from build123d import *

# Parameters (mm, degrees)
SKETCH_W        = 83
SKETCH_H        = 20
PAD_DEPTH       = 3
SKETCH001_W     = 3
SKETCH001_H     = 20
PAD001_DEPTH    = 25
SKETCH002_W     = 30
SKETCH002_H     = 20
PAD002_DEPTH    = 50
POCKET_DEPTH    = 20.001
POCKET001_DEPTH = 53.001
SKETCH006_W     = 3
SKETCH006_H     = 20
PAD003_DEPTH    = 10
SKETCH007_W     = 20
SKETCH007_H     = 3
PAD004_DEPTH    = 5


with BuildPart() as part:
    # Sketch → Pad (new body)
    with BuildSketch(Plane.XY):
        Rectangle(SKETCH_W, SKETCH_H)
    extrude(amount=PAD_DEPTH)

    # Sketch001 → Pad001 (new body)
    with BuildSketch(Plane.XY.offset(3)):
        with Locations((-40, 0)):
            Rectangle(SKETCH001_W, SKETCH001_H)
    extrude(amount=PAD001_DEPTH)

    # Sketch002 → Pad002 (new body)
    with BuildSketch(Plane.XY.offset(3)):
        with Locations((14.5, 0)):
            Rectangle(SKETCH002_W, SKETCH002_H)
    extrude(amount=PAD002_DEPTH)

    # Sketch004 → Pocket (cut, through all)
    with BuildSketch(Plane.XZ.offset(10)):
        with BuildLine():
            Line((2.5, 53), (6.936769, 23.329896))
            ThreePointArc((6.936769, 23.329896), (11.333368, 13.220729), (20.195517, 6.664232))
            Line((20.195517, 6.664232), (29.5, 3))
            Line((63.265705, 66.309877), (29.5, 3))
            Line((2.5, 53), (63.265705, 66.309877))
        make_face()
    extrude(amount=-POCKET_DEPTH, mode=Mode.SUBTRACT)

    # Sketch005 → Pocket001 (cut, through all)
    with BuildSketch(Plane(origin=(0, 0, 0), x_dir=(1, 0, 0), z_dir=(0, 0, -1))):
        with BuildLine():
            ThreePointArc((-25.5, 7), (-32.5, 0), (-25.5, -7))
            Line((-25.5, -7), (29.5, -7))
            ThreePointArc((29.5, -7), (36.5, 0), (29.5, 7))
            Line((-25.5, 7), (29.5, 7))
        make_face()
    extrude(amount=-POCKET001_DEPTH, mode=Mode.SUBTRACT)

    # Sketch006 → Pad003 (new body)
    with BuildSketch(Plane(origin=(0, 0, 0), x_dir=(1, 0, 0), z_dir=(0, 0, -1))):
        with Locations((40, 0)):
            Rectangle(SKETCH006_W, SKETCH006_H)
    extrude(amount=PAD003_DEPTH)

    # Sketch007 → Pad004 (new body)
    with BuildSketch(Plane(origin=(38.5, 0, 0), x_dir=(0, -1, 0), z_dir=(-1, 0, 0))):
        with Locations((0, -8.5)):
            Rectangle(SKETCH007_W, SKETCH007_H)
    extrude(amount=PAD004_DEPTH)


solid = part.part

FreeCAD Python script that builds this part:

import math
import FreeCAD as App
import Part
import Sketcher
Q = App.Units.Quantity

doc = App.newDocument("Part")
body = doc.addObject("PartDesign::Body", "Body")

# Sketch on XY plane
sketch1 = body.newObject("Sketcher::SketchObject", "Sketch")
sketch1.AttachmentSupport = (doc.getObject("XY_Plane"), [""])
sketch1.MapMode = "FlatFace"
sketch1.addGeometry(Part.LineSegment(App.Vector(-41.5, 10, 0), App.Vector(-41.5, -10, 0)), False)
sketch1.addGeometry(Part.LineSegment(App.Vector(-41.5, -10, 0), App.Vector(41.5, -10, 0)), False)
sketch1.addGeometry(Part.LineSegment(App.Vector(41.5, -10, 0), App.Vector(41.5, 10, 0)), False)
sketch1.addGeometry(Part.LineSegment(App.Vector(41.5, 10, 0), App.Vector(-41.5, 10, 0)), False)
sketch1.addConstraint(Sketcher.Constraint("Coincident", 0, 2, 1, 1))
sketch1.addConstraint(Sketcher.Constraint("Coincident", 1, 2, 2, 1))
sketch1.addConstraint(Sketcher.Constraint("Coincident", 2, 2, 3, 1))
sketch1.addConstraint(Sketcher.Constraint("Coincident", 3, 2, 0, 1))
sketch1.addConstraint(Sketcher.Constraint("Vertical", 0))
sketch1.addConstraint(Sketcher.Constraint("Horizontal", 1))
sketch1.addConstraint(Sketcher.Constraint("Vertical", 2))
sketch1.addConstraint(Sketcher.Constraint("Horizontal", 3))
sketch1.addConstraint(Sketcher.Constraint("Symmetric", 0, 2, 2, 2, -1, 1))
sketch1.addConstraint(Sketcher.Constraint("DistanceX", 1, 1, 1, 2, Q("83 mm")))
sketch1.addConstraint(Sketcher.Constraint("DistanceY", 0, 2, 0, 1, Q("20 mm")))
pad1 = body.newObject("PartDesign::Pad", "Pad")
pad1.Profile = sketch1
pad1.Length = 3

# Sketch on XY plane
sketch2 = body.newObject("Sketcher::SketchObject", "Sketch001")
sketch2.AttachmentSupport = (doc.getObject("XY_Plane"), [""])
sketch2.MapMode = "FlatFace"
sketch2.AttachmentOffset = App.Placement(App.Vector(0, 0, 3), App.Rotation())
sketch2.addGeometry(Part.LineSegment(App.Vector(-41.5, 10, 0), App.Vector(-41.5, -10, 0)), False)
sketch2.addGeometry(Part.LineSegment(App.Vector(-41.5, -10, 0), App.Vector(-38.5, -10, 0)), False)
sketch2.addGeometry(Part.LineSegment(App.Vector(-38.5, -10, 0), App.Vector(-38.5, 10, 0)), False)
sketch2.addGeometry(Part.LineSegment(App.Vector(-38.5, 10, 0), App.Vector(-41.5, 10, 0)), False)
sketch2.addConstraint(Sketcher.Constraint("Coincident", 0, 2, 1, 1))
sketch2.addConstraint(Sketcher.Constraint("Coincident", 1, 2, 2, 1))
sketch2.addConstraint(Sketcher.Constraint("Coincident", 2, 2, 3, 1))
sketch2.addConstraint(Sketcher.Constraint("Coincident", 3, 2, 0, 1))
sketch2.addConstraint(Sketcher.Constraint("Vertical", 0))
sketch2.addConstraint(Sketcher.Constraint("Horizontal", 1))
sketch2.addConstraint(Sketcher.Constraint("Vertical", 2))
sketch2.addConstraint(Sketcher.Constraint("Horizontal", 3))
sketch2.addConstraint(Sketcher.Constraint("DistanceX", 1, 1, 1, 2, Q("3 mm")))
sketch2.addConstraint(Sketcher.Constraint("DistanceY", 0, 2, 0, 1, Q("20 mm")))
sketch2.addConstraint(Sketcher.Constraint("DistanceY", 0, 2, -1, 1, Q("10 mm")))
sketch2.addConstraint(Sketcher.Constraint("DistanceX", 0, 2, -1, 1, Q("41.5 mm")))
pad2 = body.newObject("PartDesign::Pad", "Pad001")
pad2.Profile = sketch2
pad2.Length = 25

# Sketch on XY plane
sketch3 = body.newObject("Sketcher::SketchObject", "Sketch002")
sketch3.AttachmentSupport = (doc.getObject("XY_Plane"), [""])
sketch3.MapMode = "FlatFace"
sketch3.AttachmentOffset = App.Placement(App.Vector(0, 0, 3), App.Rotation())
sketch3.addGeometry(Part.LineSegment(App.Vector(-0.5, 10, 0), App.Vector(-0.5, -10, 0)), False)
sketch3.addGeometry(Part.LineSegment(App.Vector(-0.5, -10, 0), App.Vector(29.5, -10, 0)), False)
sketch3.addGeometry(Part.LineSegment(App.Vector(29.5, -10, 0), App.Vector(29.5, 10, 0)), False)
sketch3.addGeometry(Part.LineSegment(App.Vector(29.5, 10, 0), App.Vector(-0.5, 10, 0)), False)
sketch3.addConstraint(Sketcher.Constraint("Coincident", 0, 2, 1, 1))
sketch3.addConstraint(Sketcher.Constraint("Coincident", 1, 2, 2, 1))
sketch3.addConstraint(Sketcher.Constraint("Coincident", 2, 2, 3, 1))
sketch3.addConstraint(Sketcher.Constraint("Coincident", 3, 2, 0, 1))
sketch3.addConstraint(Sketcher.Constraint("Vertical", 0))
sketch3.addConstraint(Sketcher.Constraint("Horizontal", 1))
sketch3.addConstraint(Sketcher.Constraint("Vertical", 2))
sketch3.addConstraint(Sketcher.Constraint("Horizontal", 3))
sketch3.addConstraint(Sketcher.Constraint("DistanceX", 1, 1, 1, 2, Q("30 mm")))
sketch3.addConstraint(Sketcher.Constraint("DistanceY", 0, 2, 0, 1, Q("20 mm")))
sketch3.addConstraint(Sketcher.Constraint("DistanceY", 0, 2, -1, 1, Q("10 mm")))
sketch3.addConstraint(Sketcher.Constraint("DistanceX", 0, 2, -1, 1, Q("0.5 mm")))
pad3 = body.newObject("PartDesign::Pad", "Pad002")
pad3.Profile = sketch3
pad3.Length = 50

# Sketch on XZ plane
sketch4 = body.newObject("Sketcher::SketchObject", "Sketch003")
sketch4.AttachmentSupport = (doc.getObject("XZ_Plane"), [""])
sketch4.MapMode = "FlatFace"
sketch4.AttachmentOffset = App.Placement(App.Vector(0, 0, 10), App.Rotation())
sketch4.addGeometry(Part.LineSegment(App.Vector(2.5, 53, 0), App.Vector(6.936769, 23.329896, 0)), False)
sketch4.addGeometry(Part.ArcOfCircle(Part.Circle(App.Vector(27.999036, 26.47948, 0), App.Vector(0, 0, 1), 21.296454), math.radians(-171.495192), math.radians(-111.495206)), False)
sketch4.addGeometry(Part.LineSegment(App.Vector(20.195517, 6.664232, 0), App.Vector(29.5, 3, 0)), False)
sketch4.addGeometry(Part.LineSegment(App.Vector(29.5, 3, 0), App.Vector(63.265705, 66.309877, 0)), False)
sketch4.addGeometry(Part.LineSegment(App.Vector(63.265705, 66.309877, 0), App.Vector(2.5, 53, 0)), False)
sketch4.addConstraint(Sketcher.Constraint("Tangent", 0, 2, 1, 1))
sketch4.addConstraint(Sketcher.Constraint("Tangent", 1, 2, 2, 1))
sketch4.addConstraint(Sketcher.Constraint("Coincident", 2, 2, 3, 1))
sketch4.addConstraint(Sketcher.Constraint("Coincident", 3, 2, 4, 1))
sketch4.addConstraint(Sketcher.Constraint("Coincident", 4, 2, 0, 1))
sketch4.addConstraint(Sketcher.Constraint("Distance", 0, Q("30 mm")))
sketch4.addConstraint(Sketcher.Constraint("Distance", 2, Q("10 mm")))
sketch4.addConstraint(Sketcher.Constraint("DistanceY", -1, 1, 2, 2, Q("3 mm")))
sketch4.addConstraint(Sketcher.Constraint("DistanceY", -1, 1, 4, 2, Q("53 mm")))
sketch4.addConstraint(Sketcher.Constraint("DistanceX", 4, 2, 2, 2, Q("27 mm")))
sketch4.addConstraint(Sketcher.Constraint("DistanceX", -1, 1, 2, 2, Q("29.5 mm")))
sketch4.addConstraint(Sketcher.Constraint("Radius", 1, Q("21.296454 mm")))
sketch4.addConstraint(Sketcher.Constraint("Distance", 3, Q("71.7514 mm")))
sketch4.addConstraint(Sketcher.Constraint("Distance", 4, Q("62.2063 mm")))
pocket1 = body.newObject("PartDesign::Pocket", "Pocket")
pocket1.Profile = sketch4
pocket1.Type = "ThroughAll"

# Sketch on XY plane
sketch5 = body.newObject("Sketcher::SketchObject", "Sketch004")
sketch5.AttachmentSupport = (doc.getObject("XY_Plane"), [""])
sketch5.MapMode = "FlatFace"
sketch5.addGeometry(Part.ArcOfCircle(Part.Circle(App.Vector(-25.5, 0, 0), App.Vector(0, 0, 1), 7), math.radians(90), math.radians(270)), False)
sketch5.addGeometry(Part.LineSegment(App.Vector(-25.5, 7, 0), App.Vector(29.5, 7, 0)), False)
sketch5.addGeometry(Part.ArcOfCircle(Part.Circle(App.Vector(29.5, 0, 0), App.Vector(0, 0, 1), 7), math.radians(-90), math.radians(90)), False)
sketch5.addGeometry(Part.LineSegment(App.Vector(29.5, -7, 0), App.Vector(-25.5, -7, 0)), False)
sketch5.addConstraint(Sketcher.Constraint("Tangent", 0, 1, 1, 1))
sketch5.addConstraint(Sketcher.Constraint("Tangent", 1, 2, 2, 2))
sketch5.addConstraint(Sketcher.Constraint("Tangent", 2, 1, 3, 1))
sketch5.addConstraint(Sketcher.Constraint("Tangent", 3, 2, 0, 2))
sketch5.addConstraint(Sketcher.Constraint("Horizontal", 1))
sketch5.addConstraint(Sketcher.Constraint("Horizontal", 3))
sketch5.addConstraint(Sketcher.Constraint("PointOnObject", 0, 3, -1))
sketch5.addConstraint(Sketcher.Constraint("Radius", 0, Q("7 mm")))
sketch5.addConstraint(Sketcher.Constraint("DistanceX", 1, 1, 1, 2, Q("55 mm")))
sketch5.addConstraint(Sketcher.Constraint("DistanceX", 0, 3, -1, 1, Q("25.5 mm")))
pocket2 = body.newObject("PartDesign::Pocket", "Pocket001")
pocket2.Profile = sketch5
pocket2.Type = "ThroughAll"
pocket2.Reversed = True

# Sketch on XY plane
sketch6 = body.newObject("Sketcher::SketchObject", "Sketch005")
sketch6.AttachmentSupport = (doc.getObject("XY_Plane"), [""])
sketch6.MapMode = "FlatFace"
sketch6.addGeometry(Part.LineSegment(App.Vector(38.5, -10, 0), App.Vector(38.5, 10, 0)), False)
sketch6.addGeometry(Part.LineSegment(App.Vector(38.5, 10, 0), App.Vector(41.5, 10, 0)), False)
sketch6.addGeometry(Part.LineSegment(App.Vector(41.5, 10, 0), App.Vector(41.5, -10, 0)), False)
sketch6.addGeometry(Part.LineSegment(App.Vector(41.5, -10, 0), App.Vector(38.5, -10, 0)), False)
sketch6.addConstraint(Sketcher.Constraint("Coincident", 0, 2, 1, 1))
sketch6.addConstraint(Sketcher.Constraint("Coincident", 1, 2, 2, 1))
sketch6.addConstraint(Sketcher.Constraint("Coincident", 2, 2, 3, 1))
sketch6.addConstraint(Sketcher.Constraint("Coincident", 3, 2, 0, 1))
sketch6.addConstraint(Sketcher.Constraint("Vertical", 0))
sketch6.addConstraint(Sketcher.Constraint("Horizontal", 1))
sketch6.addConstraint(Sketcher.Constraint("Vertical", 2))
sketch6.addConstraint(Sketcher.Constraint("Horizontal", 3))
sketch6.addConstraint(Sketcher.Constraint("DistanceX", 1, 1, 1, 2, Q("3 mm")))
sketch6.addConstraint(Sketcher.Constraint("DistanceY", 0, 1, 0, 2, Q("20 mm")))
sketch6.addConstraint(Sketcher.Constraint("DistanceY", -1, 1, 0, 2, Q("10 mm")))
sketch6.addConstraint(Sketcher.Constraint("DistanceX", -1, 1, 0, 2, Q("38.5 mm")))
pad4 = body.newObject("PartDesign::Pad", "Pad003")
pad4.Profile = sketch6
pad4.Length = 10
pad4.Reversed = True

# Sketch on YZ plane
sketch7 = body.newObject("Sketcher::SketchObject", "Sketch006")
sketch7.AttachmentSupport = (doc.getObject("YZ_Plane"), [""])
sketch7.MapMode = "FlatFace"
sketch7.AttachmentOffset = App.Placement(App.Vector(0, 0, 38.5), App.Rotation())
sketch7.addGeometry(Part.LineSegment(App.Vector(10, -7, 0), App.Vector(10, -10, 0)), False)
sketch7.addGeometry(Part.LineSegment(App.Vector(10, -10, 0), App.Vector(-10, -10, 0)), False)
sketch7.addGeometry(Part.LineSegment(App.Vector(-10, -10, 0), App.Vector(-10, -7, 0)), False)
sketch7.addGeometry(Part.LineSegment(App.Vector(-10, -7, 0), App.Vector(10, -7, 0)), False)
sketch7.addConstraint(Sketcher.Constraint("Coincident", 0, 2, 1, 1))
sketch7.addConstraint(Sketcher.Constraint("Coincident", 1, 2, 2, 1))
sketch7.addConstraint(Sketcher.Constraint("Coincident", 2, 2, 3, 1))
sketch7.addConstraint(Sketcher.Constraint("Coincident", 3, 2, 0, 1))
sketch7.addConstraint(Sketcher.Constraint("Vertical", 0))
sketch7.addConstraint(Sketcher.Constraint("Horizontal", 1))
sketch7.addConstraint(Sketcher.Constraint("Vertical", 2))
sketch7.addConstraint(Sketcher.Constraint("Horizontal", 3))
sketch7.addConstraint(Sketcher.Constraint("DistanceX", 1, 2, 1, 1, Q("20 mm")))
sketch7.addConstraint(Sketcher.Constraint("DistanceY", 0, 2, 0, 1, Q("3 mm")))
sketch7.addConstraint(Sketcher.Constraint("DistanceX", -1, 1, 0, 2, Q("10 mm")))
sketch7.addConstraint(Sketcher.Constraint("DistanceY", 0, 2, -1, 1, Q("10 mm")))
pad5 = body.newObject("PartDesign::Pad", "Pad004")
pad5.Profile = sketch7
pad5.Length = 5
pad5.Reversed = True

doc.recompute()
